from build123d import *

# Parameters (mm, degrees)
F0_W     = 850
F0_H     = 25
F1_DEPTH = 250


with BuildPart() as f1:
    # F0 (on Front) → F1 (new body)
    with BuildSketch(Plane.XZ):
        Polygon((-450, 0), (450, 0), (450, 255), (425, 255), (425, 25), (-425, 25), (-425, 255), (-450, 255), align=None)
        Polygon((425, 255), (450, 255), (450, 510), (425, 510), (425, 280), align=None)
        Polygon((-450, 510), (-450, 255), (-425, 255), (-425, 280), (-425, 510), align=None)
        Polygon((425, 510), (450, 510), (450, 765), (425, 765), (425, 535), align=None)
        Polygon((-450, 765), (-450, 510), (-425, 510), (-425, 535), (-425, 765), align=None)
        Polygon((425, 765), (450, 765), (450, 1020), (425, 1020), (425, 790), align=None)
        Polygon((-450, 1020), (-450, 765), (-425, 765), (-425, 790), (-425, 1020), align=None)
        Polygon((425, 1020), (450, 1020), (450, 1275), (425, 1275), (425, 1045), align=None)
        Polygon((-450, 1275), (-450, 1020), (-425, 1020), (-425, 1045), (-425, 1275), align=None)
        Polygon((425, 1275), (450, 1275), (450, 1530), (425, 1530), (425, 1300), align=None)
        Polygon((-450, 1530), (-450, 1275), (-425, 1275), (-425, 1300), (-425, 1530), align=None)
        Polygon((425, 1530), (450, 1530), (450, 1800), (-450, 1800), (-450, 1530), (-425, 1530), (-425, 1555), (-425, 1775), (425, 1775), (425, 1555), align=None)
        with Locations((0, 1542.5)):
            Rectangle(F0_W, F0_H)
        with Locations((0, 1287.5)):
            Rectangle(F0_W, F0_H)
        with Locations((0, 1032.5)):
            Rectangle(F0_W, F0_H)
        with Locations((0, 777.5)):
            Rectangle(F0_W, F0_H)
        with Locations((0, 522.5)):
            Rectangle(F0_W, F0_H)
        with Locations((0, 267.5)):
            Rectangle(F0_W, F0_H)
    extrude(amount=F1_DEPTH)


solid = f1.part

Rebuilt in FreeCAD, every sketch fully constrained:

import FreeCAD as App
import Part
import Sketcher
Q = App.Units.Quantity

doc = App.newDocument("Part")
body = doc.addObject("PartDesign::Body", "Body")

# Sketch on XZ plane
sketch1 = body.newObject("Sketcher::SketchObject", "Sketch")
sketch1.AttachmentSupport = (doc.getObject("XZ_Plane"), [""])
sketch1.MapMode = "FlatFace"
sketch1.addGeometry(Part.LineSegment(App.Vector(-450, 0, 0), App.Vector(450, 0, 0)), False)
sketch1.addGeometry(Part.LineSegment(App.Vector(450, 0, 0), App.Vector(450, 1800, 0)), False)
sketch1.addGeometry(Part.LineSegment(App.Vector(450, 1800, 0), App.Vector(-450, 1800, 0)), False)
sketch1.addGeometry(Part.LineSegment(App.Vector(-450, 1800, 0), App.Vector(-450, 0, 0)), False)
sketch1.addGeometry(Part.LineSegment(App.Vector(425, 25, 0), App.Vector(-425, 25, 0)), False)
sketch1.addGeometry(Part.LineSegment(App.Vector(-425, 25, 0), App.Vector(-425, 255, 0)), False)
sketch1.addGeometry(Part.LineSegment(App.Vector(-425, 255, 0), App.Vector(425, 255, 0)), False)
sketch1.addGeometry(Part.LineSegment(App.Vector(425, 255, 0), App.Vector(425, 25, 0)), False)
sketch1.addGeometry(Part.LineSegment(App.Vector(-425, 280, 0), App.Vector(-425, 510, 0)), False)
sketch1.addGeometry(Part.LineSegment(App.Vector(-425, 510, 0), App.Vector(425, 510, 0)), False)
sketch1.addGeometry(Part.LineSegment(App.Vector(425, 510, 0), App.Vector(425, 280, 0)), False)
sketch1.addGeometry(Part.LineSegment(App.Vector(425, 280, 0), App.Vector(-425, 280, 0)), False)
sketch1.addGeometry(Part.LineSegment(App.Vector(-425, 535, 0), App.Vector(-425, 765, 0)), False)
sketch1.addGeometry(Part.LineSegment(App.Vector(-425, 765, 0), App.Vector(425, 765, 0)), False)
sketch1.addGeometry(Part.LineSegment(App.Vector(425, 765, 0), App.Vector(425, 535, 0)), False)
sketch1.addGeometry(Part.LineSegment(App.Vector(425, 535, 0), App.Vector(-425, 535, 0)), False)
sketch1.addGeometry(Part.LineSegment(App.Vector(-425, 790, 0), App.Vector(-425, 1020, 0)), False)
sketch1.addGeometry(Part.LineSegment(App.Vector(-425, 1020, 0), App.Vector(425, 1020, 0)), False)
sketch1.addGeometry(Part.LineSegment(App.Vector(425, 1020, 0), App.Vector(425, 790, 0)), False)
sketch1.addGeometry(Part.LineSegment(App.Vector(425, 790, 0), App.Vector(-425, 790, 0)), False)
sketch1.addGeometry(Part.LineSegment(App.Vector(-425, 1045, 0), App.Vector(-425, 1275, 0)), False)
sketch1.addGeometry(Part.LineSegment(App.Vector(-425, 1275, 0), App.Vector(425, 1275, 0)), False)
sketch1.addGeometry(Part.LineSegment(App.Vector(425, 1275, 0), App.Vector(425, 1045, 0)), False)
sketch1.addGeometry(Part.LineSegment(App.Vector(425, 1045, 0), App.Vector(-425, 1045, 0)), False)
sketch1.addGeometry(Part.LineSegment(App.Vector(-425, 1300, 0), App.Vector(-425, 1530, 0)), False)
sketch1.addGeometry(Part.LineSegment(App.Vector(-425, 1530, 0), App.Vector(425, 1530, 0)), False)
sketch1.addGeometry(Part.LineSegment(App.Vector(425, 1530, 0), App.Vector(425, 1300, 0)), False)
sketch1.addGeometry(Part.LineSegment(App.Vector(425, 1300, 0), App.Vector(-425, 1300, 0)), False)
sketch1.addGeometry(Part.LineSegment(App.Vector(-425, 1555, 0), App.Vector(-425, 1775, 0)), False)
sketch1.addGeometry(Part.LineSegment(App.Vector(-425, 1775, 0), App.Vector(425, 1775, 0)), False)
sketch1.addGeometry(Part.LineSegment(App.Vector(425, 1775, 0), App.Vector(425, 1555, 0)), False)
sketch1.addGeometry(Part.LineSegment(App.Vector(425, 1555, 0), App.Vector(-425, 1555, 0)), False)
sketch1.addConstraint(Sketcher.Constraint("Coincident", 0, 2, 1, 1))
sketch1.addConstraint(Sketcher.Constraint("Coincident", 1, 2, 2, 1))
sketch1.addConstraint(Sketcher.Constraint("Coincident", 2, 2, 3, 1))
sketch1.addConstraint(Sketcher.Constraint("Coincident", 3, 2, 0, 1))
sketch1.addConstraint(Sketcher.Constraint("Coincident", 4, 2, 5, 1))
sketch1.addConstraint(Sketcher.Constraint("Coincident", 5, 2, 6, 1))
sketch1.addConstraint(Sketcher.Constraint("Coincident", 6, 2, 7, 1))
sketch1.addConstraint(Sketcher.Constraint("Coincident", 7, 2, 4, 1))
sketch1.addConstraint(Sketcher.Constraint("Coincident", 8, 2, 9, 1))
sketch1.addConstraint(Sketcher.Constraint("Coincident", 9, 2, 10, 1))
sketch1.addConstraint(Sketcher.Constraint("Coincident", 10, 2, 11, 1))
sketch1.addConstraint(Sketcher.Constraint("Coincident", 11, 2, 8, 1))
sketch1.addConstraint(Sketcher.Constraint("Coincident", 12, 2, 13, 1))
sketch1.addConstraint(Sketcher.Constraint("Coincident", 13, 2, 14, 1))
sketch1.addConstraint(Sketcher.Constraint("Coincident", 14, 2, 15, 1))
sketch1.addConstraint(Sketcher.Constraint("Coincident", 15, 2, 12, 1))
sketch1.addConstraint(Sketcher.Constraint("Coincident", 16, 2, 17, 1))
sketch1.addConstraint(Sketcher.Constraint("Coincident", 17, 2, 18, 1))
sketch1.addConstraint(Sketcher.Constraint("Coincident", 18, 2, 19, 1))
sketch1.addConstraint(Sketcher.Constraint("Coincident", 19, 2, 16, 1))
sketch1.addConstraint(Sketcher.Constraint("Coincident", 20, 2, 21, 1))
sketch1.addConstraint(Sketcher.Constraint("Coincident", 21, 2, 22, 1))
sketch1.addConstraint(Sketcher.Constraint("Coincident", 22, 2, 23, 1))
sketch1.addConstraint(Sketcher.Constraint("Coincident", 23, 2, 20, 1))
sketch1.addConstraint(Sketcher.Constraint("Coincident", 24, 2, 25, 1))
sketch1.addConstraint(Sketcher.Constraint("Coincident", 25, 2, 26, 1))
sketch1.addConstraint(Sketcher.Constraint("Coincident", 26, 2, 27, 1))
sketch1.addConstraint(Sketcher.Constraint("Coincident", 27, 2, 24, 1))
sketch1.addConstraint(Sketcher.Constraint("Coincident", 28, 2, 29, 1))
sketch1.addConstraint(Sketcher.Constraint("Coincident", 29, 2, 30, 1))
sketch1.addConstraint(Sketcher.Constraint("Coincident", 30, 2, 31, 1))
sketch1.addConstraint(Sketcher.Constraint("Coincident", 31, 2, 28, 1))
sketch1.addConstraint(Sketcher.Constraint("Horizontal", 0))
sketch1.addConstraint(Sketcher.Constraint("Vertical", 1))
sketch1.addConstraint(Sketcher.Constraint("Horizontal", 2))
sketch1.addConstraint(Sketcher.Constraint("Vertical", 3))
sketch1.addConstraint(Sketcher.Constraint("Horizontal", 4))
sketch1.addConstraint(Sketcher.Constraint("Vertical", 5))
sketch1.addConstraint(Sketcher.Constraint("Horizontal", 6))
sketch1.addConstraint(Sketcher.Constraint("Vertical", 7))
sketch1.addConstraint(Sketcher.Constraint("Vertical", 8))
sketch1.addConstraint(Sketcher.Constraint("Horizontal", 9))
sketch1.addConstraint(Sketcher.Constraint("Vertical", 10))
sketch1.addConstraint(Sketcher.Constraint("Horizontal", 11))
sketch1.addConstraint(Sketcher.Constraint("Vertical", 12))
sketch1.addConstraint(Sketcher.Constraint("Horizontal", 13))
sketch1.addConstraint(Sketcher.Constraint("Vertical", 14))
sketch1.addConstraint(Sketcher.Constraint("Horizontal", 15))
sketch1.addConstraint(Sketcher.Constraint("Vertical", 16))
sketch1.addConstraint(Sketcher.Constraint("Horizontal", 17))
sketch1.addConstraint(Sketcher.Constraint("Vertical", 18))
sketch1.addConstraint(Sketcher.Constraint("Horizontal", 19))
sketch1.addConstraint(Sketcher.Constraint("Vertical", 20))
sketch1.addConstraint(Sketcher.Constraint("Horizontal", 21))
sketch1.addConstraint(Sketcher.Constraint("Vertical", 22))
sketch1.addConstraint(Sketcher.Constraint("Horizontal", 23))
sketch1.addConstraint(Sketcher.Constraint("Vertical", 24))
sketch1.addConstraint(Sketcher.Constraint("Horizontal", 25))
sketch1.addConstraint(Sketcher.Constraint("Vertical", 26))
sketch1.addConstraint(Sketcher.Constraint("Horizontal", 27))
sketch1.addConstraint(Sketcher.Constraint("Vertical", 28))
sketch1.addConstraint(Sketcher.Constraint("Horizontal", 29))
sketch1.addConstraint(Sketcher.Constraint("Vertical", 30))
sketch1.addConstraint(Sketcher.Constraint("Horizontal", 31))
sketch1.addConstraint(Sketcher.Constraint("Symmetric", 0, 2, 3, 2, -1, 1))
sketch1.addConstraint(Sketcher.Constraint("Vertical", 5, 2, 8, 2))
sketch1.addConstraint(Sketcher.Constraint("Vertical", 7, 2, 9, 2))
sketch1.addConstraint(Sketcher.Constraint("Vertical", 11, 2, 12, 2))
sketch1.addConstraint(Sketcher.Constraint("Vertical", 10, 2, 13, 2))
sketch1.addConstraint(Sketcher.Constraint("Vertical", 15, 2, 16, 2))
sketch1.addConstraint(Sketcher.Constraint("Vertical", 14, 2, 17, 2))
sketch1.addConstraint(Sketcher.Constraint("Vertical", 19, 2, 20, 2))
sketch1.addConstraint(Sketcher.Constraint("Vertical", 18, 2, 21, 2))
sketch1.addConstraint(Sketcher.Constraint("Vertical", 23, 2, 24, 2))
sketch1.addConstraint(Sketcher.Constraint("Vertical", 22, 2, 25, 2))
sketch1.addConstraint(Sketcher.Constraint("Vertical", 27, 2, 28, 2))
sketch1.addConstraint(Sketcher.Constraint("Vertical", 26, 2, 29, 2))
sketch1.addConstraint(Sketcher.Constraint("Equal", 7, 8))
sketch1.addConstraint(Sketcher.Constraint("Equal", 10, 12))
sketch1.addConstraint(Sketcher.Constraint("Equal", 14, 16))
sketch1.addConstraint(Sketcher.Constraint("Equal", 18, 20))
sketch1.addConstraint(Sketcher.Constraint("Equal", 22, 24))
sketch1.addConstraint(Sketcher.Constraint("DistanceX", 0, 1, 0, 2, Q("900 mm")))
sketch1.addConstraint(Sketcher.Constraint("DistanceX", 4, 2, 4, 1, Q("850 mm")))
sketch1.addConstraint(Sketcher.Constraint("DistanceY", 1, 1, 1, 2, Q("1800 mm")))
sketch1.addConstraint(Sketcher.Constraint("DistanceY", 5, 1, 5, 2, Q("230 mm")))
sketch1.addConstraint(Sketcher.Constraint("DistanceY", 28, 1, 28, 2, Q("220 mm")))
sketch1.addConstraint(Sketcher.Constraint("DistanceX", 4, 2, -1, 1, Q("425 mm")))
sketch1.addConstraint(Sketcher.Constraint("DistanceY", -1, 1, 4, 2, Q("25 mm")))
sketch1.addConstraint(Sketcher.Constraint("DistanceY", -1, 1, 8, 2, Q("510 mm")))
sketch1.addConstraint(Sketcher.Constraint("DistanceY", -1, 1, 12, 2, Q("765 mm")))
sketch1.addConstraint(Sketcher.Constraint("DistanceY", -1, 1, 16, 2, Q("1020 mm")))
sketch1.addConstraint(Sketcher.Constraint("DistanceY", -1, 1, 20, 2, Q("1275 mm")))
sketch1.addConstraint(Sketcher.Constraint("DistanceY", -1, 1, 24, 2, Q("1530 mm")))
sketch1.addConstraint(Sketcher.Constraint("DistanceY", -1, 1, 28, 2, Q("1775 mm")))
pad1 = body.newObject("PartDesign::Pad", "Pad")
pad1.Profile = sketch1
pad1.Length = 250

doc.recompute()
